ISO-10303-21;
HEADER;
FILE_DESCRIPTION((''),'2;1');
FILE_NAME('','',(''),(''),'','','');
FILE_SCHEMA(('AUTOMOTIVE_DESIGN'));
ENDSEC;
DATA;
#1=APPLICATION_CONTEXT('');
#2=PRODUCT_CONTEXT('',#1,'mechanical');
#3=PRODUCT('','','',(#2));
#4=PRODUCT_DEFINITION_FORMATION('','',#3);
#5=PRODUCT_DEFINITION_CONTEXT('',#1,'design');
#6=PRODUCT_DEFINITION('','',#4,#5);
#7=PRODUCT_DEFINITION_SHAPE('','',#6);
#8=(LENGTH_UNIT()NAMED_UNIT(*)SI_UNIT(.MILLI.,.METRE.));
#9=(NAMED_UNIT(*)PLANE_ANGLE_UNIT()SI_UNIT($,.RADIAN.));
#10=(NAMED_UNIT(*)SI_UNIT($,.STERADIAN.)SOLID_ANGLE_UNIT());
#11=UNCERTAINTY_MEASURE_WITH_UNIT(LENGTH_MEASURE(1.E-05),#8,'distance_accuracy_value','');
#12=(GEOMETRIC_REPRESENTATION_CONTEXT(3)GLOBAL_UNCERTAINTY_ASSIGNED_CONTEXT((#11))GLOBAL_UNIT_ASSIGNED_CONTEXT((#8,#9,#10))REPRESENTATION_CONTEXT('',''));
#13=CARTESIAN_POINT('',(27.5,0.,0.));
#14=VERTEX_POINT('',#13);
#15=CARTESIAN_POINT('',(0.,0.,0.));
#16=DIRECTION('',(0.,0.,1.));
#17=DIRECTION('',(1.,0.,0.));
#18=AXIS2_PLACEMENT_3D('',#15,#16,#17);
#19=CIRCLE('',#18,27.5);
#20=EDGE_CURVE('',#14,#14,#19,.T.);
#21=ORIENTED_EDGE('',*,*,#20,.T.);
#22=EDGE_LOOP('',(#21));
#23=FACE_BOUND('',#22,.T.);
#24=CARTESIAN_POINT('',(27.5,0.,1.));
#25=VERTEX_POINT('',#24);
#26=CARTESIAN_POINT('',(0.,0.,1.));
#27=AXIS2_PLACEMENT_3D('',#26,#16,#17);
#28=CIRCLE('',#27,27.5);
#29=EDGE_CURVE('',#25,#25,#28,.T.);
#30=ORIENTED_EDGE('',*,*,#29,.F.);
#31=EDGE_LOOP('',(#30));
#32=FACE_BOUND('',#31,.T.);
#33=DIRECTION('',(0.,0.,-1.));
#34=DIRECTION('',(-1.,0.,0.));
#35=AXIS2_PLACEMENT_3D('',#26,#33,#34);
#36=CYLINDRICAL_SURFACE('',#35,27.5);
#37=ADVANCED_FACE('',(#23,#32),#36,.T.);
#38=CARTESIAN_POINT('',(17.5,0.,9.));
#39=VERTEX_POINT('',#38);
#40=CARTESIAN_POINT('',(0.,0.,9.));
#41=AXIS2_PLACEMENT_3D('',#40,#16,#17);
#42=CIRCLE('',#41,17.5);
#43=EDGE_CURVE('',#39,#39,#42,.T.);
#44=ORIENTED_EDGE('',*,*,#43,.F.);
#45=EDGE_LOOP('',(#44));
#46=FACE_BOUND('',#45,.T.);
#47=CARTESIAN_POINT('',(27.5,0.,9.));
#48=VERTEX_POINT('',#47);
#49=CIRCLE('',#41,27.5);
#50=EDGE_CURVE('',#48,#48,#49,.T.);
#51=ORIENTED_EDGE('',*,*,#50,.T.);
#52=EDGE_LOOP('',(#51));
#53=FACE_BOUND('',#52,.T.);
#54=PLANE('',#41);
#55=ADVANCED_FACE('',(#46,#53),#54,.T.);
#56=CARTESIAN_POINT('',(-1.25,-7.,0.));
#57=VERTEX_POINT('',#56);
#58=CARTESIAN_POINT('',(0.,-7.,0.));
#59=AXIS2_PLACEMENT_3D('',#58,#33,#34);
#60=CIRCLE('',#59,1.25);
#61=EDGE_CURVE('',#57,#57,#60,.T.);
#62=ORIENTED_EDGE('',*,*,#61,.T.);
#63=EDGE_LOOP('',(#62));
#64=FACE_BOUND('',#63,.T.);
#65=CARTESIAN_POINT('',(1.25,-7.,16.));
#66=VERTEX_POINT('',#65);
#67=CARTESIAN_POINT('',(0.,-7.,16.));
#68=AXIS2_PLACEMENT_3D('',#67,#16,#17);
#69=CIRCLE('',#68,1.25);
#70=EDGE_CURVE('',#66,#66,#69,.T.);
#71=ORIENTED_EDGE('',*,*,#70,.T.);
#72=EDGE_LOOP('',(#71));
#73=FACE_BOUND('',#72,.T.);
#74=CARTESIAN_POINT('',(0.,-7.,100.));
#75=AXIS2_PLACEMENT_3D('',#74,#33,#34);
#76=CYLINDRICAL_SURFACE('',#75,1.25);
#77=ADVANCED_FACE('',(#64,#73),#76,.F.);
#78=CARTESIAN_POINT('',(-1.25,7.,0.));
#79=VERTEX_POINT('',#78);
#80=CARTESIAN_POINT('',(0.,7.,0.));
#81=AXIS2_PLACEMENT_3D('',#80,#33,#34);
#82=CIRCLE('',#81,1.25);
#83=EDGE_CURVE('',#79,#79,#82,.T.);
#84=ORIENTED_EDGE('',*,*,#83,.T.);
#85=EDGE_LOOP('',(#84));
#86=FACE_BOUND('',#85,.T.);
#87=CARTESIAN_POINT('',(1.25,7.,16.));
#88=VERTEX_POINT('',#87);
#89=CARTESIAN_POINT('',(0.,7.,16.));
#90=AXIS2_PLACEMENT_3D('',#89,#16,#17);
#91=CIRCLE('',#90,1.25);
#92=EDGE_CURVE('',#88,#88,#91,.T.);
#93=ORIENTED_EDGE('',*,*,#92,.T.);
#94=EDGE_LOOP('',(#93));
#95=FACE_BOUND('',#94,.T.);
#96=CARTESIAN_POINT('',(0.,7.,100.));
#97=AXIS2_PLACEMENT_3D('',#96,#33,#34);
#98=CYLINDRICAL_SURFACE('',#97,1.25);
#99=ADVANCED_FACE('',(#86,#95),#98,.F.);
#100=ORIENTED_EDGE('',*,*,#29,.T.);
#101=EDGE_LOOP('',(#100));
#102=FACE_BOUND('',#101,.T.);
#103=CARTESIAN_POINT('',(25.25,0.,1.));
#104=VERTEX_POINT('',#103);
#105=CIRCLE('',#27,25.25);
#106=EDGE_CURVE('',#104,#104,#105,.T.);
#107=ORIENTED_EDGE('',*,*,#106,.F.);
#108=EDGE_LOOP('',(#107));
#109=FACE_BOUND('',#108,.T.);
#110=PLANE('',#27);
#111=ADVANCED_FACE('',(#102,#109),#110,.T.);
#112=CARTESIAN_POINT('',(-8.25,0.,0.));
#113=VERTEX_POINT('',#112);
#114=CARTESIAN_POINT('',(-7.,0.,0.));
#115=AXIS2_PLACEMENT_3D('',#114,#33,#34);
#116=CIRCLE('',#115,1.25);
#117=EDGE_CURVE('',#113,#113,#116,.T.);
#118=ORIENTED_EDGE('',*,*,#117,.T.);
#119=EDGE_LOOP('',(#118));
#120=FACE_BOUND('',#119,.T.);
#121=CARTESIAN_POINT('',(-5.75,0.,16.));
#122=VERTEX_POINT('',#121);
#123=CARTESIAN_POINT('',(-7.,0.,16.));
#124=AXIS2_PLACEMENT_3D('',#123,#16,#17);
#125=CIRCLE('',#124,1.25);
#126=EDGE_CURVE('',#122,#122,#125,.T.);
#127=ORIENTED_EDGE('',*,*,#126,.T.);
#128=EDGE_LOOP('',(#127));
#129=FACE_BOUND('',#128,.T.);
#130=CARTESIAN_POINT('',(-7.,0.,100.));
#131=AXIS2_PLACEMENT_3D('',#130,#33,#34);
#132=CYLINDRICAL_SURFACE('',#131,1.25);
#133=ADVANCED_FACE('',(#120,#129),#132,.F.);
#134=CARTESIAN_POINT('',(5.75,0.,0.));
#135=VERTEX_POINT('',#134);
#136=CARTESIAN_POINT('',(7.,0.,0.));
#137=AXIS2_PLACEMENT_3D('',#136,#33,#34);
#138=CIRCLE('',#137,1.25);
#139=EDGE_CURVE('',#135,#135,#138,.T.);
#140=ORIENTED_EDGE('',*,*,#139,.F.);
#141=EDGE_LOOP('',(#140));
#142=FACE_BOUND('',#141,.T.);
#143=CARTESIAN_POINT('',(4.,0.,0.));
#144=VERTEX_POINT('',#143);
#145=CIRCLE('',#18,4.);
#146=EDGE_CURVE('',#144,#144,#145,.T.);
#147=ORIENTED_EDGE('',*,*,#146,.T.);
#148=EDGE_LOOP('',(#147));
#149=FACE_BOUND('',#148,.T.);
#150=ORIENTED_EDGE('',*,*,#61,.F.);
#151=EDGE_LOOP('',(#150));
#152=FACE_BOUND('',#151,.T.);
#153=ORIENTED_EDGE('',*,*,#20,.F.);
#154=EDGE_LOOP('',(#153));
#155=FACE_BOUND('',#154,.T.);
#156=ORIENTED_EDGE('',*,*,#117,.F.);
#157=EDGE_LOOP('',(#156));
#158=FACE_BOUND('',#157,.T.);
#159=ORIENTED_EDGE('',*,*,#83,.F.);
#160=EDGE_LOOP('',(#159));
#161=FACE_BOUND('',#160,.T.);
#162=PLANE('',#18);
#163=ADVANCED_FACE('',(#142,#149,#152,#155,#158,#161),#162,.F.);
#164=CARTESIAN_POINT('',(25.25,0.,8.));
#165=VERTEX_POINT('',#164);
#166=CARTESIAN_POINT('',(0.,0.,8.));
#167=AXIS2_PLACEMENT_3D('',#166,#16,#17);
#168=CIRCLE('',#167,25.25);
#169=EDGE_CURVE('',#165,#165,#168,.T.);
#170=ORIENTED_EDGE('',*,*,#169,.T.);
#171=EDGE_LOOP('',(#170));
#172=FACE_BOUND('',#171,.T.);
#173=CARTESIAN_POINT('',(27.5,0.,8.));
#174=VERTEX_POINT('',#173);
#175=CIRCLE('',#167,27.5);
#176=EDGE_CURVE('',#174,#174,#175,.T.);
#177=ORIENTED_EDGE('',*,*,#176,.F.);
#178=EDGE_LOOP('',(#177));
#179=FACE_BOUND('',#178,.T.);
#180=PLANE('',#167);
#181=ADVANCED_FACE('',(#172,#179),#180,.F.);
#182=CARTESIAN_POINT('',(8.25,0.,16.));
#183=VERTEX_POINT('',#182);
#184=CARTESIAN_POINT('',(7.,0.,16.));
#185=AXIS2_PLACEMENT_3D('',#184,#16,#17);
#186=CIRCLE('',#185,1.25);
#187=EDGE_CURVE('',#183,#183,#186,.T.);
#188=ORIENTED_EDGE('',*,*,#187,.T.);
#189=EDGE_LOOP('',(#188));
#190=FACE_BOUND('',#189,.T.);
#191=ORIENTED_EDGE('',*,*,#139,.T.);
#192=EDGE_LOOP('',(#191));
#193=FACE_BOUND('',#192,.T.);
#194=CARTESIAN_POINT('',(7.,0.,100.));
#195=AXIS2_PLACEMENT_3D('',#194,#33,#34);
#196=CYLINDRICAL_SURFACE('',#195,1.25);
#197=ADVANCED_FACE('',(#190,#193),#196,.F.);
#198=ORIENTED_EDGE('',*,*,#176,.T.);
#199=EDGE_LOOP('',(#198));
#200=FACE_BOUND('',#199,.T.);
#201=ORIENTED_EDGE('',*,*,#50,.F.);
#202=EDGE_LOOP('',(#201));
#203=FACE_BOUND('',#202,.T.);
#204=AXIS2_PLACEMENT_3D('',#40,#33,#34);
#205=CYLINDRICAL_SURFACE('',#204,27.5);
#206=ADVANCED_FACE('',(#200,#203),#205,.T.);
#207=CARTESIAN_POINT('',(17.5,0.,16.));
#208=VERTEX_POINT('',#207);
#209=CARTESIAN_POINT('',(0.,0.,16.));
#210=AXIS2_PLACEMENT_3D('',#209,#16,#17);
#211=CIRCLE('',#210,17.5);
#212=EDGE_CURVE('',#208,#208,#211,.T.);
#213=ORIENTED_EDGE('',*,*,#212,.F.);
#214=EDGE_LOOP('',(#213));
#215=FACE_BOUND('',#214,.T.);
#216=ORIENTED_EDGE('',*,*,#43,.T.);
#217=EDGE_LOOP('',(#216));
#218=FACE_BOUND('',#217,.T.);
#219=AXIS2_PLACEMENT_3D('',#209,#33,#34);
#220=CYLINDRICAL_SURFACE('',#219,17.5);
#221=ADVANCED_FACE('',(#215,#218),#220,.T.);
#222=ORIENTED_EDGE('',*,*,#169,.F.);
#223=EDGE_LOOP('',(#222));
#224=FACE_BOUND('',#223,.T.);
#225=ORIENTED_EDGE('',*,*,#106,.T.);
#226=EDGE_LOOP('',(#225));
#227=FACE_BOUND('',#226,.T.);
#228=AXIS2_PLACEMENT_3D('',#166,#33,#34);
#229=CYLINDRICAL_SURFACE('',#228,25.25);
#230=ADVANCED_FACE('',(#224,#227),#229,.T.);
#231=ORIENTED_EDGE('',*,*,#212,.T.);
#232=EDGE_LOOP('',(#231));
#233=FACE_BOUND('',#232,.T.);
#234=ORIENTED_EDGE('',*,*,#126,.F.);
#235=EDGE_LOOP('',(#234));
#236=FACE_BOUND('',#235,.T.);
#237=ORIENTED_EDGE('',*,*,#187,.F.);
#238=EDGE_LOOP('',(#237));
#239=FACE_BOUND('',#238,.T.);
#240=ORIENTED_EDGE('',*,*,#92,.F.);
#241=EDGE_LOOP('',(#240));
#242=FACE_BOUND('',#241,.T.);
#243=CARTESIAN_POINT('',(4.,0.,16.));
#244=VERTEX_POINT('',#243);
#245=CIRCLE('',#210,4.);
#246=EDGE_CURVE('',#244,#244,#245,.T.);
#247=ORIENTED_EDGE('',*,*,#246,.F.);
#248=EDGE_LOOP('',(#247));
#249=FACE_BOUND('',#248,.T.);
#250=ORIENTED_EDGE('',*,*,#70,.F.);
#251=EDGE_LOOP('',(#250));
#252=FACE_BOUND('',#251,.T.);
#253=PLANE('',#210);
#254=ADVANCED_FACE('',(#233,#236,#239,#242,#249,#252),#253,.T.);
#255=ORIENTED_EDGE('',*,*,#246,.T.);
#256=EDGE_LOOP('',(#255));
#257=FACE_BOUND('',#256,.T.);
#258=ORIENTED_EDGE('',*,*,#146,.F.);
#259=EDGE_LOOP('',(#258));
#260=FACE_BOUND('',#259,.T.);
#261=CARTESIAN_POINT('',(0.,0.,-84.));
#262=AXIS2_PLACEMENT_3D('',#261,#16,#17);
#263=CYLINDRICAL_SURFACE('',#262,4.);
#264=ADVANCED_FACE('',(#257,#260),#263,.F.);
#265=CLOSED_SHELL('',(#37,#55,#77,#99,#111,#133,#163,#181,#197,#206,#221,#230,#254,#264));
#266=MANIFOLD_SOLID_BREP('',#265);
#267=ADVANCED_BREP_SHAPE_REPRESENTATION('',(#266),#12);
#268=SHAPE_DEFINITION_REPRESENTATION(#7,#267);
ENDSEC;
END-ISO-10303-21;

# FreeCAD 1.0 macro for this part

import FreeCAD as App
import Part
import Sketcher
from FreeCAD import Vector
Q = App.Units.Quantity

doc = App.newDocument("Part")
body = doc.addObject("PartDesign::Body", "Body")

sketch1 = body.newObject("Sketcher::SketchObject", "Sketch")
sketch1.AttachmentSupport = (doc.getObject("XY_Plane"), [""])
sketch1.MapMode = "FlatFace"
sketch1.addGeometry(Part.Circle(Vector(0, 0, 0), Vector(0, 0, 1), 28), False)
sketch1.addConstraint([
    Sketcher.Constraint("Coincident", 0, 3, -1, 1),
    Sketcher.Constraint("Diameter", 0, Q("55 mm")),
])
pad1 = body.newObject("PartDesign::Pad", "Pad")
pad1.Profile = sketch1
pad1.Length = 1

sketch2 = body.newObject("Sketcher::SketchObject", "Sketch001")
sketch2.AttachmentSupport = (doc.getObject("XY_Plane"), [""])
sketch2.MapMode = "FlatFace"
sketch2.AttachmentOffset = App.Placement(Vector(0, 0, 1), App.Rotation())
sketch2.addGeometry(Part.Circle(Vector(0, 0, 0), Vector(0, 0, 1), 25), False)
sketch2.addConstraint([
    Sketcher.Constraint("Coincident", 0, 3, -1, 1),
    Sketcher.Constraint("Diameter", 0, Q("50.5 mm")),
])
pad2 = body.newObject("PartDesign::Pad", "Pad001")
pad2.Profile = sketch2
pad2.Length = 7

sketch3 = body.newObject("Sketcher::SketchObject", "Sketch002")
sketch3.AttachmentSupport = (doc.getObject("XY_Plane"), [""])
sketch3.MapMode = "FlatFace"
sketch3.AttachmentOffset = App.Placement(Vector(0, 0, 8), App.Rotation())
sketch3.addGeometry(Part.Circle(Vector(0, 0, 0), Vector(0, 0, 1), 28), False)
sketch3.addConstraint([
    Sketcher.Constraint("Coincident", 0, 3, -1, 1),
    Sketcher.Constraint("Diameter", 0, Q("55 mm")),
])
pad3 = body.newObject("PartDesign::Pad", "Pad002")
pad3.Profile = sketch3
pad3.Length = 1

sketch4 = body.newObject("Sketcher::SketchObject", "Sketch003")
sketch4.AttachmentSupport = (doc.getObject("XY_Plane"), [""])
sketch4.MapMode = "FlatFace"
sketch4.AttachmentOffset = App.Placement(Vector(0, 0, 9), App.Rotation())
sketch4.addGeometry(Part.Circle(Vector(0, 0, 0), Vector(0, 0, 1), 18), False)
sketch4.addConstraint([
    Sketcher.Constraint("Coincident", 0, 3, -1, 1),
    Sketcher.Constraint("Diameter", 0, Q("35 mm")),
])
pad4 = body.newObject("PartDesign::Pad", "Pad003")
pad4.Profile = sketch4
pad4.Length = 7

sketch5 = body.newObject("Sketcher::SketchObject", "Sketch004")
sketch5.AttachmentSupport = (doc.getObject("XY_Plane"), [""])
sketch5.MapMode = "FlatFace"
sketch5.AttachmentOffset = App.Placement(Vector(0, 0, 16), App.Rotation())
sketch5.addGeometry(Part.Circle(Vector(0, 0, 0), Vector(0, 0, 1), 4), False)
sketch5.addConstraint([
    Sketcher.Constraint("Coincident", 0, 3, -1, 1),
    Sketcher.Constraint("Diameter", 0, Q("8 mm")),
])
pocket1 = body.newObject("PartDesign::Pocket", "Pocket")
pocket1.Profile = sketch5
pocket1.Length = 100

sketch6 = body.newObject("Sketcher::SketchObject", "Sketch005")
sketch6.AttachmentSupport = (doc.getObject("XY_Plane"), [""])
sketch6.MapMode = "FlatFace"
sketch6.addGeometry([
    Part.Circle(Vector(-7, 0, 0), Vector(0, 0, 1), 1.2),
    Part.Circle(Vector(0, -7, 0), Vector(0, 0, 1), 1.2),
    Part.Circle(Vector(7, 0, 0), Vector(0, 0, 1), 1.2),
    Part.Circle(Vector(0, 7, 0), Vector(0, 0, 1), 1.2),
], False)
sketch6.addConstraint([
    Sketcher.Constraint("Equal", 0, 1),
    Sketcher.Constraint("Equal", 1, 2),
    Sketcher.Constraint("Equal", 2, 3),
    Sketcher.Constraint("Symmetric", 0, 3, 2, 3, -1, 1),
    Sketcher.Constraint("Symmetric", 1, 3, 3, 3, -1, 1),
    Sketcher.Constraint("PointOnObject", 0, 3, -1),
    Sketcher.Constraint("PointOnObject", 1, 3, -2),
    Sketcher.Constraint("Diameter", 0, Q("2.5 mm")),
    Sketcher.Constraint("DistanceX", 0, 3, -1, 1, Q("7 mm")),
    Sketcher.Constraint("DistanceY", 1, 3, -1, 1, Q("7 mm")),
])
pocket2 = body.newObject("PartDesign::Pocket", "Pocket001")
pocket2.Profile = sketch6
pocket2.Length = 100
pocket2.Reversed = True

doc.recompute()
